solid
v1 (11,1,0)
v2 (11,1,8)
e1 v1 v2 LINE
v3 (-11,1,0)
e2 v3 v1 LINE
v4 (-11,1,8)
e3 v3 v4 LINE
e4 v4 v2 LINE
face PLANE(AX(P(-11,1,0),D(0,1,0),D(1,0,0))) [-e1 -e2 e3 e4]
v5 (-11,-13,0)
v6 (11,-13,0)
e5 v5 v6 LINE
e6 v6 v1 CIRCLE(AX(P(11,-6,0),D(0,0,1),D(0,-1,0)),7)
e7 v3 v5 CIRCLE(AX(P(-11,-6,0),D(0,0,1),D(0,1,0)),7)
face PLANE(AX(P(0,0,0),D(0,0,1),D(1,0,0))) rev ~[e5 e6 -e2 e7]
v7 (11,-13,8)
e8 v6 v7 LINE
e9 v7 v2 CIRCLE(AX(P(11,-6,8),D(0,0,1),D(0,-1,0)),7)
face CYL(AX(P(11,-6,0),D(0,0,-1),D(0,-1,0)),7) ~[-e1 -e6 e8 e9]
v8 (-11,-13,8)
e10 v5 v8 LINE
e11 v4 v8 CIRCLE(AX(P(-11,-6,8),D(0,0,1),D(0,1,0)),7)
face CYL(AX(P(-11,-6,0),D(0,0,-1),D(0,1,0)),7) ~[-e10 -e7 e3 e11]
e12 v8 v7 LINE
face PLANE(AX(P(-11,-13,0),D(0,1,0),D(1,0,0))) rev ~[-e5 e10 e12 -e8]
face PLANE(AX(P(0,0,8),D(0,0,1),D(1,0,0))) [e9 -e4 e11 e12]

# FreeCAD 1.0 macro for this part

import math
import FreeCAD as App
import Part
import Sketcher
from FreeCAD import Vector

doc = App.newDocument("Part")
body = doc.addObject("PartDesign::Body", "Body")

# Sketch on XY plane
sketch1 = body.newObject("Sketcher::SketchObject", "Sketch")
sketch1.AttachmentSupport = (doc.getObject("XY_Plane"), [""])
sketch1.MapMode = "FlatFace"
sketch1.addGeometry(Part.LineSegment(Vector(11, 1, 0), Vector(-11, 1, 0)), False)
sketch1.addGeometry(Part.ArcOfCircle(Part.Circle(Vector(-11, -6, 0), Vector(0, 0, 1), 7), math.radians(90), math.radians(270)), False)
sketch1.addGeometry(Part.LineSegment(Vector(-11, -13, 0), Vector(11, -13, 0)), False)
sketch1.addGeometry(Part.ArcOfCircle(Part.Circle(Vector(11, -6, 0), Vector(0, 0, 1), 7), math.radians(-90), math.radians(90)), False)
sketch1.addConstraint(Sketcher.Constraint("Tangent", 0, 2, 1, 1))
sketch1.addConstraint(Sketcher.Constraint("Tangent", 1, 2, 2, 1))
sketch1.addConstraint(Sketcher.Constraint("Tangent", 2, 2, 3, 1))
sketch1.addConstraint(Sketcher.Constraint("Tangent", 3, 2, 0, 1))
sketch1.addConstraint(Sketcher.Constraint("Horizontal", 0))
sketch1.addConstraint(Sketcher.Constraint("Horizontal", 2))
sketch1.addConstraint(Sketcher.Constraint("Radius", 1, 7.0))
sketch1.addConstraint(Sketcher.Constraint("DistanceX", 0, 2, 0, 1, 22.0))
sketch1.addConstraint(Sketcher.Constraint("DistanceX", 1, 3, -1, 1, 11.0))
sketch1.addConstraint(Sketcher.Constraint("DistanceY", 1, 3, -1, 1, 6.0))
pad1 = body.newObject("PartDesign::Pad", "Pad")
pad1.Profile = sketch1
pad1.Length = 8

doc.recompute()
